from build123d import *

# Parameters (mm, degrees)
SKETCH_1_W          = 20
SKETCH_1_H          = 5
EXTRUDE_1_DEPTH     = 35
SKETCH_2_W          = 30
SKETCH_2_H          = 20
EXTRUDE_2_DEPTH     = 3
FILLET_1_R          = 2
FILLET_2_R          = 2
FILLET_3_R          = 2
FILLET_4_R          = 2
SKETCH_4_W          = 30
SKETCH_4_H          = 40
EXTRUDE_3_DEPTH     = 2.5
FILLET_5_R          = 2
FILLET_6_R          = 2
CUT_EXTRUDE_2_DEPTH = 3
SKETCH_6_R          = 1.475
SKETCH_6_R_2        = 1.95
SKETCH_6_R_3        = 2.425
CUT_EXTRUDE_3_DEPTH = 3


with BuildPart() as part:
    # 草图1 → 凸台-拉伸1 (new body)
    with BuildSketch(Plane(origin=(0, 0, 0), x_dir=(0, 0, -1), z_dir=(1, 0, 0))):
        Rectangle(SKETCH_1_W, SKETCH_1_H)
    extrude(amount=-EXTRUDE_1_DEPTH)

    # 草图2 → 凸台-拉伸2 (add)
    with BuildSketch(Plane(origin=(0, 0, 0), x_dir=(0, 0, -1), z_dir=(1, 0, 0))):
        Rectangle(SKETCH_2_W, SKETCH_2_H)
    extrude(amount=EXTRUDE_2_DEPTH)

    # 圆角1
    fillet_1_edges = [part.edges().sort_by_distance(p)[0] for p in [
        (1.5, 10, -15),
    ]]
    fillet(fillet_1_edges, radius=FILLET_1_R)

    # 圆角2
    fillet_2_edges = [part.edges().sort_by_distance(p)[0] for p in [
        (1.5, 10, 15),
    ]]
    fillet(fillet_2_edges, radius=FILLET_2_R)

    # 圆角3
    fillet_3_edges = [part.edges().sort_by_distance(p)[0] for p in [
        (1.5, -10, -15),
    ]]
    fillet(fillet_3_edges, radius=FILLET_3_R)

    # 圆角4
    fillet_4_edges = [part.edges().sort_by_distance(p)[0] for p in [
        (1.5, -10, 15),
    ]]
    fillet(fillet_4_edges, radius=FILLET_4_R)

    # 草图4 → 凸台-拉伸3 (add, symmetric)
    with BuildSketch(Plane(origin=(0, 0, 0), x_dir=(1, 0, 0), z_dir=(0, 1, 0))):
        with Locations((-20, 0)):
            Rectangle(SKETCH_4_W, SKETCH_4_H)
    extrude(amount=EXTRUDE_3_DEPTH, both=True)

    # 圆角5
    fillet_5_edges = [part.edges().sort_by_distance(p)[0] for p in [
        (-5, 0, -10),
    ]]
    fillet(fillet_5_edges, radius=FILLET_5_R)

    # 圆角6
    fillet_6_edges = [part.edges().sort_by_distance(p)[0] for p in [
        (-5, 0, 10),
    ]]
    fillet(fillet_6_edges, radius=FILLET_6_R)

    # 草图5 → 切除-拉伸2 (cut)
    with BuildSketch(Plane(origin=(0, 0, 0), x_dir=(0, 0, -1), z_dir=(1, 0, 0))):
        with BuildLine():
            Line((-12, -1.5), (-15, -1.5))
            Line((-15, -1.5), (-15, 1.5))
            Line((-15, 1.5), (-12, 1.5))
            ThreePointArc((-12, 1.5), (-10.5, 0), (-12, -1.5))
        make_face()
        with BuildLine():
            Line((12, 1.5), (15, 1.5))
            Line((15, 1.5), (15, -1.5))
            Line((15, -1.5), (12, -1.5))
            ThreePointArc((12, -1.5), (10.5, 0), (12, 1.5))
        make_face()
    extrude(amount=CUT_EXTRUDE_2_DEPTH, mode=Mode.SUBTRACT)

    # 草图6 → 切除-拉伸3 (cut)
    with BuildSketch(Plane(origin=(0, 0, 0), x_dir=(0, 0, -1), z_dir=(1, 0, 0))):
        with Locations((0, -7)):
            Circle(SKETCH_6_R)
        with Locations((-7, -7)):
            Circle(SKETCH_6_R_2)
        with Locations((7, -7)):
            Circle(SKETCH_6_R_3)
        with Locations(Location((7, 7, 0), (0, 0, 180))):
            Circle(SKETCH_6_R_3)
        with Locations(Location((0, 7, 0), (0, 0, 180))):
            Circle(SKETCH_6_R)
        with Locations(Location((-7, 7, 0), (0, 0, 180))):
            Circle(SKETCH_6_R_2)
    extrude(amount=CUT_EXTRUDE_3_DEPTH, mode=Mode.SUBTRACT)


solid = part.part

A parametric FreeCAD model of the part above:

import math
import FreeCAD as App
import Part
import Sketcher
from FreeCAD import Vector
Q = App.Units.Quantity


def edges_at(feature, points):
    """Names of the edges that pass closest to the given points."""
    edges = feature.Shape.Edges
    near = lambda p: min(range(len(edges)), key=lambda i: edges[i].distToShape(Part.Vertex(*p))[0])
    return sorted({f"Edge{near(p) + 1}" for p in points})

doc = App.newDocument("Part")
body = doc.addObject("PartDesign::Body", "Body")

sketch1 = body.newObject("Sketcher::SketchObject", "Sketch")
sketch1.AttachmentSupport = (doc.getObject("YZ_Plane"), [""])
sketch1.MapMode = "FlatFace"
sketch1.addGeometry(Part.LineSegment(Vector(2.5, 10, 0), Vector(-2.5, 10, 0)), False)
sketch1.addGeometry(Part.LineSegment(Vector(-2.5, 10, 0), Vector(-2.5, -10, 0)), False)
sketch1.addGeometry(Part.LineSegment(Vector(-2.5, -10, 0), Vector(2.5, -10, 0)), False)
sketch1.addGeometry(Part.LineSegment(Vector(2.5, -10, 0), Vector(2.5, 10, 0)), False)
sketch1.addConstraint(Sketcher.Constraint("Coincident", 0, 2, 1, 1))
sketch1.addConstraint(Sketcher.Constraint("Coincident", 1, 2, 2, 1))
sketch1.addConstraint(Sketcher.Constraint("Coincident", 2, 2, 3, 1))
sketch1.addConstraint(Sketcher.Constraint("Coincident", 3, 2, 0, 1))
sketch1.addConstraint(Sketcher.Constraint("Horizontal", 0))
sketch1.addConstraint(Sketcher.Constraint("Vertical", 1))
sketch1.addConstraint(Sketcher.Constraint("Horizontal", 2))
sketch1.addConstraint(Sketcher.Constraint("Vertical", 3))
sketch1.addConstraint(Sketcher.Constraint("Symmetric", 0, 2, 2, 2, -1, 1))
sketch1.addConstraint(Sketcher.Constraint("DistanceX", 0, 2, 0, 1, Q("5 mm")))
sketch1.addConstraint(Sketcher.Constraint("DistanceY", 1, 2, 1, 1, Q("20 mm")))
pad1 = body.newObject("PartDesign::Pad", "Pad")
pad1.Profile = sketch1
pad1.Length = 35
pad1.Reversed = True

sketch2 = body.newObject("Sketcher::SketchObject", "Sketch001")
sketch2.AttachmentSupport = (doc.getObject("YZ_Plane"), [""])
sketch2.MapMode = "FlatFace"
sketch2.addGeometry(Part.LineSegment(Vector(10, 15, 0), Vector(-10, 15, 0)), False)
sketch2.addGeometry(Part.LineSegment(Vector(-10, 15, 0), Vector(-10, -15, 0)), False)
sketch2.addGeometry(Part.LineSegment(Vector(-10, -15, 0), Vector(10, -15, 0)), False)
sketch2.addGeometry(Part.LineSegment(Vector(10, -15, 0), Vector(10, 15, 0)), False)
sketch2.addConstraint(Sketcher.Constraint("Coincident", 0, 2, 1, 1))
sketch2.addConstraint(Sketcher.Constraint("Coincident", 1, 2, 2, 1))
sketch2.addConstraint(Sketcher.Constraint("Coincident", 2, 2, 3, 1))
sketch2.addConstraint(Sketcher.Constraint("Coincident", 3, 2, 0, 1))
sketch2.addConstraint(Sketcher.Constraint("Horizontal", 0))
sketch2.addConstraint(Sketcher.Constraint("Vertical", 1))
sketch2.addConstraint(Sketcher.Constraint("Horizontal", 2))
sketch2.addConstraint(Sketcher.Constraint("Vertical", 3))
sketch2.addConstraint(Sketcher.Constraint("Symmetric", 0, 2, 2, 2, -1, 1))
sketch2.addConstraint(Sketcher.Constraint("DistanceX", 0, 2, 0, 1, Q("20 mm")))
sketch2.addConstraint(Sketcher.Constraint("DistanceY", 1, 2, 1, 1, Q("30 mm")))
pad2 = body.newObject("PartDesign::Pad", "Pad001")
pad2.Profile = sketch2
pad2.Length = 3
doc.recompute()

fillet = body.newObject("PartDesign::Fillet", "Fillet")
fillet.Base = (pad2, edges_at(pad2, [(1.5, 10, -15)]))
fillet.Radius = 2
doc.recompute()

fillet2 = body.newObject("PartDesign::Fillet", "Fillet001")
fillet2.Base = (fillet, edges_at(fillet, [(1.5, 10, 15)]))
fillet2.Radius = 2
doc.recompute()

fillet3 = body.newObject("PartDesign::Fillet", "Fillet002")
fillet3.Base = (fillet2, edges_at(fillet2, [(1.5, -10, -15)]))
fillet3.Radius = 2
doc.recompute()

fillet4 = body.newObject("PartDesign::Fillet", "Fillet003")
fillet4.Base = (fillet3, edges_at(fillet3, [(1.5, -10, 15)]))
fillet4.Radius = 2

sketch3 = body.newObject("Sketcher::SketchObject", "Sketch002")
sketch3.AttachmentSupport = (doc.getObject("XZ_Plane"), [""])
sketch3.MapMode = "FlatFace"
sketch3.addGeometry(Part.LineSegment(Vector(-35, -20, 0), Vector(-35, 20, 0)), False)
sketch3.addGeometry(Part.LineSegment(Vector(-35, 20, 0), Vector(-5, 20, 0)), False)
sketch3.addGeometry(Part.LineSegment(Vector(-5, 20, 0), Vector(-5, -20, 0)), False)
sketch3.addGeometry(Part.LineSegment(Vector(-5, -20, 0), Vector(-35, -20, 0)), False)
sketch3.addConstraint(Sketcher.Constraint("Coincident", 0, 2, 1, 1))
sketch3.addConstraint(Sketcher.Constraint("Coincident", 1, 2, 2, 1))
sketch3.addConstraint(Sketcher.Constraint("Coincident", 2, 2, 3, 1))
sketch3.addConstraint(Sketcher.Constraint("Coincident", 3, 2, 0, 1))
sketch3.addConstraint(Sketcher.Constraint("Vertical", 0))
sketch3.addConstraint(Sketcher.Constraint("Horizontal", 1))
sketch3.addConstraint(Sketcher.Constraint("Vertical", 2))
sketch3.addConstraint(Sketcher.Constraint("Horizontal", 3))
sketch3.addConstraint(Sketcher.Constraint("DistanceX", 1, 1, 1, 2, Q("30 mm")))
sketch3.addConstraint(Sketcher.Constraint("DistanceY", 0, 1, 0, 2, Q("40 mm")))
sketch3.addConstraint(Sketcher.Constraint("DistanceX", 0, 2, -1, 1, Q("35 mm")))
sketch3.addConstraint(Sketcher.Constraint("DistanceY", -1, 1, 0, 2, Q("20 mm")))
pad3 = body.newObject("PartDesign::Pad", "Pad002")
pad3.Profile = sketch3
pad3.Length = 5
pad3.Midplane = True
doc.recompute()

fillet5 = body.newObject("PartDesign::Fillet", "Fillet004")
fillet5.Base = (pad3, edges_at(pad3, [(-5, 0, -10)]))
fillet5.Radius = 2
doc.recompute()

fillet6 = body.newObject("PartDesign::Fillet", "Fillet005")
fillet6.Base = (fillet5, edges_at(fillet5, [(-5, 0, 10)]))
fillet6.Radius = 2

sketch4 = body.newObject("Sketcher::SketchObject", "Sketch003")
sketch4.AttachmentSupport = (doc.getObject("YZ_Plane"), [""])
sketch4.MapMode = "FlatFace"
sketch4.addGeometry(Part.LineSegment(Vector(-1.5, 15, 0), Vector(-1.5, 12, 0)), False)
sketch4.addGeometry(Part.ArcOfCircle(Part.Circle(Vector(0, 12, 0), Vector(0, 0, 1), 1.5), math.radians(180), math.radians(360)), False)
sketch4.addGeometry(Part.LineSegment(Vector(1.5, 12, 0), Vector(1.5, 15, 0)), False)
sketch4.addGeometry(Part.LineSegment(Vector(1.5, 15, 0), Vector(-1.5, 15, 0)), False)
sketch4.addGeometry(Part.LineSegment(Vector(1.5, -15, 0), Vector(1.5, -12, 0)), False)
sketch4.addGeometry(Part.ArcOfCircle(Part.Circle(Vector(0, -12, 0), Vector(0, 0, 1), 1.5), math.radians(0), math.radians(180)), False)
sketch4.addGeometry(Part.LineSegment(Vector(-1.5, -12, 0), Vector(-1.5, -15, 0)), False)
sketch4.addGeometry(Part.LineSegment(Vector(-1.5, -15, 0), Vector(1.5, -15, 0)), False)
sketch4.addConstraint(Sketcher.Constraint("Tangent", 0, 2, 1, 1))
sketch4.addConstraint(Sketcher.Constraint("Tangent", 1, 2, 2, 1))
sketch4.addConstraint(Sketcher.Constraint("Coincident", 2, 2, 3, 1))
sketch4.addConstraint(Sketcher.Constraint("Coincident", 3, 2, 0, 1))
sketch4.addConstraint(Sketcher.Constraint("Tangent", 4, 2, 5, 1))
sketch4.addConstraint(Sketcher.Constraint("Tangent", 5, 2, 6, 1))
sketch4.addConstraint(Sketcher.Constraint("Coincident", 6, 2, 7, 1))
sketch4.addConstraint(Sketcher.Constraint("Coincident", 7, 2, 4, 1))
sketch4.addConstraint(Sketcher.Constraint("Vertical", 0))
sketch4.addConstraint(Sketcher.Constraint("Vertical", 2))
sketch4.addConstraint(Sketcher.Constraint("Horizontal", 3))
sketch4.addConstraint(Sketcher.Constraint("Vertical", 4))
sketch4.addConstraint(Sketcher.Constraint("Vertical", 6))
sketch4.addConstraint(Sketcher.Constraint("Horizontal", 7))
sketch4.addConstraint(Sketcher.Constraint("Equal", 1, 5))
sketch4.addConstraint(Sketcher.Constraint("Symmetric", 1, 3, 5, 3, -1, 1))
sketch4.addConstraint(Sketcher.Constraint("Symmetric", 3, 2, 6, 2, -1))
sketch4.addConstraint(Sketcher.Constraint("Equal", 7, 0))
sketch4.addConstraint(Sketcher.Constraint("Radius", 1, Q("1.5 mm")))
sketch4.addConstraint(Sketcher.Constraint("DistanceY", -1, 1, 1, 3, Q("12 mm")))
pocket1 = body.newObject("PartDesign::Pocket", "Pocket")
pocket1.Profile = sketch4
pocket1.Length = 3
pocket1.Reversed = True

sketch5 = body.newObject("Sketcher::SketchObject", "Sketch004")
sketch5.AttachmentSupport = (doc.getObject("YZ_Plane"), [""])
sketch5.MapMode = "FlatFace"
sketch5.addGeometry(Part.Circle(Vector(-7, 0, 0), Vector(0, 0, 1), 1.475), False)
sketch5.addGeometry(Part.Circle(Vector(-7, 7, 0), Vector(0, 0, 1), 1.95), False)
sketch5.addGeometry(Part.Circle(Vector(-7, -7, 0), Vector(0, 0, 1), 2.425), False)
sketch5.addGeometry(Part.Circle(Vector(7, -7, 0), Vector(0, 0, 1), 2.425), False)
sketch5.addGeometry(Part.Circle(Vector(7, 0, 0), Vector(0, 0, 1), 1.475), False)
sketch5.addGeometry(Part.Circle(Vector(7, 7, 0), Vector(0, 0, 1), 1.95), False)
sketch5.addConstraint(Sketcher.Constraint("Equal", 2, 3))
sketch5.addConstraint(Sketcher.Constraint("Equal", 0, 4))
sketch5.addConstraint(Sketcher.Constraint("Equal", 1, 5))
sketch5.addConstraint(Sketcher.Constraint("Symmetric", 1, 3, 3, 3, -1, 1))
sketch5.addConstraint(Sketcher.Constraint("Symmetric", 0, 3, 4, 3, -1, 1))
sketch5.addConstraint(Sketcher.Constraint("Symmetric", 2, 3, 5, 3, -1, 1))
sketch5.addConstraint(Sketcher.Constraint("Symmetric", 2, 3, 3, 3, -2))
sketch5.addConstraint(Sketcher.Constraint("PointOnObject", 0, 3, -1))
sketch5.addConstraint(Sketcher.Constraint("Vertical", 0, 3, 1, 3))
sketch5.addConstraint(Sketcher.Constraint("Diameter", 1, Q("3.9 mm")))
sketch5.addConstraint(Sketcher.Constraint("Diameter", 0, Q("2.95 mm")))
sketch5.addConstraint(Sketcher.Constraint("Diameter", 2, Q("4.85 mm")))
sketch5.addConstraint(Sketcher.Constraint("DistanceX", 0, 3, -1, 1, Q("7 mm")))
sketch5.addConstraint(Sketcher.Constraint("DistanceY", -1, 1, 1, 3, Q("7 mm")))
pocket2 = body.newObject("PartDesign::Pocket", "Pocket001")
pocket2.Profile = sketch5
pocket2.Length = 3
pocket2.Reversed = True

doc.recompute()
